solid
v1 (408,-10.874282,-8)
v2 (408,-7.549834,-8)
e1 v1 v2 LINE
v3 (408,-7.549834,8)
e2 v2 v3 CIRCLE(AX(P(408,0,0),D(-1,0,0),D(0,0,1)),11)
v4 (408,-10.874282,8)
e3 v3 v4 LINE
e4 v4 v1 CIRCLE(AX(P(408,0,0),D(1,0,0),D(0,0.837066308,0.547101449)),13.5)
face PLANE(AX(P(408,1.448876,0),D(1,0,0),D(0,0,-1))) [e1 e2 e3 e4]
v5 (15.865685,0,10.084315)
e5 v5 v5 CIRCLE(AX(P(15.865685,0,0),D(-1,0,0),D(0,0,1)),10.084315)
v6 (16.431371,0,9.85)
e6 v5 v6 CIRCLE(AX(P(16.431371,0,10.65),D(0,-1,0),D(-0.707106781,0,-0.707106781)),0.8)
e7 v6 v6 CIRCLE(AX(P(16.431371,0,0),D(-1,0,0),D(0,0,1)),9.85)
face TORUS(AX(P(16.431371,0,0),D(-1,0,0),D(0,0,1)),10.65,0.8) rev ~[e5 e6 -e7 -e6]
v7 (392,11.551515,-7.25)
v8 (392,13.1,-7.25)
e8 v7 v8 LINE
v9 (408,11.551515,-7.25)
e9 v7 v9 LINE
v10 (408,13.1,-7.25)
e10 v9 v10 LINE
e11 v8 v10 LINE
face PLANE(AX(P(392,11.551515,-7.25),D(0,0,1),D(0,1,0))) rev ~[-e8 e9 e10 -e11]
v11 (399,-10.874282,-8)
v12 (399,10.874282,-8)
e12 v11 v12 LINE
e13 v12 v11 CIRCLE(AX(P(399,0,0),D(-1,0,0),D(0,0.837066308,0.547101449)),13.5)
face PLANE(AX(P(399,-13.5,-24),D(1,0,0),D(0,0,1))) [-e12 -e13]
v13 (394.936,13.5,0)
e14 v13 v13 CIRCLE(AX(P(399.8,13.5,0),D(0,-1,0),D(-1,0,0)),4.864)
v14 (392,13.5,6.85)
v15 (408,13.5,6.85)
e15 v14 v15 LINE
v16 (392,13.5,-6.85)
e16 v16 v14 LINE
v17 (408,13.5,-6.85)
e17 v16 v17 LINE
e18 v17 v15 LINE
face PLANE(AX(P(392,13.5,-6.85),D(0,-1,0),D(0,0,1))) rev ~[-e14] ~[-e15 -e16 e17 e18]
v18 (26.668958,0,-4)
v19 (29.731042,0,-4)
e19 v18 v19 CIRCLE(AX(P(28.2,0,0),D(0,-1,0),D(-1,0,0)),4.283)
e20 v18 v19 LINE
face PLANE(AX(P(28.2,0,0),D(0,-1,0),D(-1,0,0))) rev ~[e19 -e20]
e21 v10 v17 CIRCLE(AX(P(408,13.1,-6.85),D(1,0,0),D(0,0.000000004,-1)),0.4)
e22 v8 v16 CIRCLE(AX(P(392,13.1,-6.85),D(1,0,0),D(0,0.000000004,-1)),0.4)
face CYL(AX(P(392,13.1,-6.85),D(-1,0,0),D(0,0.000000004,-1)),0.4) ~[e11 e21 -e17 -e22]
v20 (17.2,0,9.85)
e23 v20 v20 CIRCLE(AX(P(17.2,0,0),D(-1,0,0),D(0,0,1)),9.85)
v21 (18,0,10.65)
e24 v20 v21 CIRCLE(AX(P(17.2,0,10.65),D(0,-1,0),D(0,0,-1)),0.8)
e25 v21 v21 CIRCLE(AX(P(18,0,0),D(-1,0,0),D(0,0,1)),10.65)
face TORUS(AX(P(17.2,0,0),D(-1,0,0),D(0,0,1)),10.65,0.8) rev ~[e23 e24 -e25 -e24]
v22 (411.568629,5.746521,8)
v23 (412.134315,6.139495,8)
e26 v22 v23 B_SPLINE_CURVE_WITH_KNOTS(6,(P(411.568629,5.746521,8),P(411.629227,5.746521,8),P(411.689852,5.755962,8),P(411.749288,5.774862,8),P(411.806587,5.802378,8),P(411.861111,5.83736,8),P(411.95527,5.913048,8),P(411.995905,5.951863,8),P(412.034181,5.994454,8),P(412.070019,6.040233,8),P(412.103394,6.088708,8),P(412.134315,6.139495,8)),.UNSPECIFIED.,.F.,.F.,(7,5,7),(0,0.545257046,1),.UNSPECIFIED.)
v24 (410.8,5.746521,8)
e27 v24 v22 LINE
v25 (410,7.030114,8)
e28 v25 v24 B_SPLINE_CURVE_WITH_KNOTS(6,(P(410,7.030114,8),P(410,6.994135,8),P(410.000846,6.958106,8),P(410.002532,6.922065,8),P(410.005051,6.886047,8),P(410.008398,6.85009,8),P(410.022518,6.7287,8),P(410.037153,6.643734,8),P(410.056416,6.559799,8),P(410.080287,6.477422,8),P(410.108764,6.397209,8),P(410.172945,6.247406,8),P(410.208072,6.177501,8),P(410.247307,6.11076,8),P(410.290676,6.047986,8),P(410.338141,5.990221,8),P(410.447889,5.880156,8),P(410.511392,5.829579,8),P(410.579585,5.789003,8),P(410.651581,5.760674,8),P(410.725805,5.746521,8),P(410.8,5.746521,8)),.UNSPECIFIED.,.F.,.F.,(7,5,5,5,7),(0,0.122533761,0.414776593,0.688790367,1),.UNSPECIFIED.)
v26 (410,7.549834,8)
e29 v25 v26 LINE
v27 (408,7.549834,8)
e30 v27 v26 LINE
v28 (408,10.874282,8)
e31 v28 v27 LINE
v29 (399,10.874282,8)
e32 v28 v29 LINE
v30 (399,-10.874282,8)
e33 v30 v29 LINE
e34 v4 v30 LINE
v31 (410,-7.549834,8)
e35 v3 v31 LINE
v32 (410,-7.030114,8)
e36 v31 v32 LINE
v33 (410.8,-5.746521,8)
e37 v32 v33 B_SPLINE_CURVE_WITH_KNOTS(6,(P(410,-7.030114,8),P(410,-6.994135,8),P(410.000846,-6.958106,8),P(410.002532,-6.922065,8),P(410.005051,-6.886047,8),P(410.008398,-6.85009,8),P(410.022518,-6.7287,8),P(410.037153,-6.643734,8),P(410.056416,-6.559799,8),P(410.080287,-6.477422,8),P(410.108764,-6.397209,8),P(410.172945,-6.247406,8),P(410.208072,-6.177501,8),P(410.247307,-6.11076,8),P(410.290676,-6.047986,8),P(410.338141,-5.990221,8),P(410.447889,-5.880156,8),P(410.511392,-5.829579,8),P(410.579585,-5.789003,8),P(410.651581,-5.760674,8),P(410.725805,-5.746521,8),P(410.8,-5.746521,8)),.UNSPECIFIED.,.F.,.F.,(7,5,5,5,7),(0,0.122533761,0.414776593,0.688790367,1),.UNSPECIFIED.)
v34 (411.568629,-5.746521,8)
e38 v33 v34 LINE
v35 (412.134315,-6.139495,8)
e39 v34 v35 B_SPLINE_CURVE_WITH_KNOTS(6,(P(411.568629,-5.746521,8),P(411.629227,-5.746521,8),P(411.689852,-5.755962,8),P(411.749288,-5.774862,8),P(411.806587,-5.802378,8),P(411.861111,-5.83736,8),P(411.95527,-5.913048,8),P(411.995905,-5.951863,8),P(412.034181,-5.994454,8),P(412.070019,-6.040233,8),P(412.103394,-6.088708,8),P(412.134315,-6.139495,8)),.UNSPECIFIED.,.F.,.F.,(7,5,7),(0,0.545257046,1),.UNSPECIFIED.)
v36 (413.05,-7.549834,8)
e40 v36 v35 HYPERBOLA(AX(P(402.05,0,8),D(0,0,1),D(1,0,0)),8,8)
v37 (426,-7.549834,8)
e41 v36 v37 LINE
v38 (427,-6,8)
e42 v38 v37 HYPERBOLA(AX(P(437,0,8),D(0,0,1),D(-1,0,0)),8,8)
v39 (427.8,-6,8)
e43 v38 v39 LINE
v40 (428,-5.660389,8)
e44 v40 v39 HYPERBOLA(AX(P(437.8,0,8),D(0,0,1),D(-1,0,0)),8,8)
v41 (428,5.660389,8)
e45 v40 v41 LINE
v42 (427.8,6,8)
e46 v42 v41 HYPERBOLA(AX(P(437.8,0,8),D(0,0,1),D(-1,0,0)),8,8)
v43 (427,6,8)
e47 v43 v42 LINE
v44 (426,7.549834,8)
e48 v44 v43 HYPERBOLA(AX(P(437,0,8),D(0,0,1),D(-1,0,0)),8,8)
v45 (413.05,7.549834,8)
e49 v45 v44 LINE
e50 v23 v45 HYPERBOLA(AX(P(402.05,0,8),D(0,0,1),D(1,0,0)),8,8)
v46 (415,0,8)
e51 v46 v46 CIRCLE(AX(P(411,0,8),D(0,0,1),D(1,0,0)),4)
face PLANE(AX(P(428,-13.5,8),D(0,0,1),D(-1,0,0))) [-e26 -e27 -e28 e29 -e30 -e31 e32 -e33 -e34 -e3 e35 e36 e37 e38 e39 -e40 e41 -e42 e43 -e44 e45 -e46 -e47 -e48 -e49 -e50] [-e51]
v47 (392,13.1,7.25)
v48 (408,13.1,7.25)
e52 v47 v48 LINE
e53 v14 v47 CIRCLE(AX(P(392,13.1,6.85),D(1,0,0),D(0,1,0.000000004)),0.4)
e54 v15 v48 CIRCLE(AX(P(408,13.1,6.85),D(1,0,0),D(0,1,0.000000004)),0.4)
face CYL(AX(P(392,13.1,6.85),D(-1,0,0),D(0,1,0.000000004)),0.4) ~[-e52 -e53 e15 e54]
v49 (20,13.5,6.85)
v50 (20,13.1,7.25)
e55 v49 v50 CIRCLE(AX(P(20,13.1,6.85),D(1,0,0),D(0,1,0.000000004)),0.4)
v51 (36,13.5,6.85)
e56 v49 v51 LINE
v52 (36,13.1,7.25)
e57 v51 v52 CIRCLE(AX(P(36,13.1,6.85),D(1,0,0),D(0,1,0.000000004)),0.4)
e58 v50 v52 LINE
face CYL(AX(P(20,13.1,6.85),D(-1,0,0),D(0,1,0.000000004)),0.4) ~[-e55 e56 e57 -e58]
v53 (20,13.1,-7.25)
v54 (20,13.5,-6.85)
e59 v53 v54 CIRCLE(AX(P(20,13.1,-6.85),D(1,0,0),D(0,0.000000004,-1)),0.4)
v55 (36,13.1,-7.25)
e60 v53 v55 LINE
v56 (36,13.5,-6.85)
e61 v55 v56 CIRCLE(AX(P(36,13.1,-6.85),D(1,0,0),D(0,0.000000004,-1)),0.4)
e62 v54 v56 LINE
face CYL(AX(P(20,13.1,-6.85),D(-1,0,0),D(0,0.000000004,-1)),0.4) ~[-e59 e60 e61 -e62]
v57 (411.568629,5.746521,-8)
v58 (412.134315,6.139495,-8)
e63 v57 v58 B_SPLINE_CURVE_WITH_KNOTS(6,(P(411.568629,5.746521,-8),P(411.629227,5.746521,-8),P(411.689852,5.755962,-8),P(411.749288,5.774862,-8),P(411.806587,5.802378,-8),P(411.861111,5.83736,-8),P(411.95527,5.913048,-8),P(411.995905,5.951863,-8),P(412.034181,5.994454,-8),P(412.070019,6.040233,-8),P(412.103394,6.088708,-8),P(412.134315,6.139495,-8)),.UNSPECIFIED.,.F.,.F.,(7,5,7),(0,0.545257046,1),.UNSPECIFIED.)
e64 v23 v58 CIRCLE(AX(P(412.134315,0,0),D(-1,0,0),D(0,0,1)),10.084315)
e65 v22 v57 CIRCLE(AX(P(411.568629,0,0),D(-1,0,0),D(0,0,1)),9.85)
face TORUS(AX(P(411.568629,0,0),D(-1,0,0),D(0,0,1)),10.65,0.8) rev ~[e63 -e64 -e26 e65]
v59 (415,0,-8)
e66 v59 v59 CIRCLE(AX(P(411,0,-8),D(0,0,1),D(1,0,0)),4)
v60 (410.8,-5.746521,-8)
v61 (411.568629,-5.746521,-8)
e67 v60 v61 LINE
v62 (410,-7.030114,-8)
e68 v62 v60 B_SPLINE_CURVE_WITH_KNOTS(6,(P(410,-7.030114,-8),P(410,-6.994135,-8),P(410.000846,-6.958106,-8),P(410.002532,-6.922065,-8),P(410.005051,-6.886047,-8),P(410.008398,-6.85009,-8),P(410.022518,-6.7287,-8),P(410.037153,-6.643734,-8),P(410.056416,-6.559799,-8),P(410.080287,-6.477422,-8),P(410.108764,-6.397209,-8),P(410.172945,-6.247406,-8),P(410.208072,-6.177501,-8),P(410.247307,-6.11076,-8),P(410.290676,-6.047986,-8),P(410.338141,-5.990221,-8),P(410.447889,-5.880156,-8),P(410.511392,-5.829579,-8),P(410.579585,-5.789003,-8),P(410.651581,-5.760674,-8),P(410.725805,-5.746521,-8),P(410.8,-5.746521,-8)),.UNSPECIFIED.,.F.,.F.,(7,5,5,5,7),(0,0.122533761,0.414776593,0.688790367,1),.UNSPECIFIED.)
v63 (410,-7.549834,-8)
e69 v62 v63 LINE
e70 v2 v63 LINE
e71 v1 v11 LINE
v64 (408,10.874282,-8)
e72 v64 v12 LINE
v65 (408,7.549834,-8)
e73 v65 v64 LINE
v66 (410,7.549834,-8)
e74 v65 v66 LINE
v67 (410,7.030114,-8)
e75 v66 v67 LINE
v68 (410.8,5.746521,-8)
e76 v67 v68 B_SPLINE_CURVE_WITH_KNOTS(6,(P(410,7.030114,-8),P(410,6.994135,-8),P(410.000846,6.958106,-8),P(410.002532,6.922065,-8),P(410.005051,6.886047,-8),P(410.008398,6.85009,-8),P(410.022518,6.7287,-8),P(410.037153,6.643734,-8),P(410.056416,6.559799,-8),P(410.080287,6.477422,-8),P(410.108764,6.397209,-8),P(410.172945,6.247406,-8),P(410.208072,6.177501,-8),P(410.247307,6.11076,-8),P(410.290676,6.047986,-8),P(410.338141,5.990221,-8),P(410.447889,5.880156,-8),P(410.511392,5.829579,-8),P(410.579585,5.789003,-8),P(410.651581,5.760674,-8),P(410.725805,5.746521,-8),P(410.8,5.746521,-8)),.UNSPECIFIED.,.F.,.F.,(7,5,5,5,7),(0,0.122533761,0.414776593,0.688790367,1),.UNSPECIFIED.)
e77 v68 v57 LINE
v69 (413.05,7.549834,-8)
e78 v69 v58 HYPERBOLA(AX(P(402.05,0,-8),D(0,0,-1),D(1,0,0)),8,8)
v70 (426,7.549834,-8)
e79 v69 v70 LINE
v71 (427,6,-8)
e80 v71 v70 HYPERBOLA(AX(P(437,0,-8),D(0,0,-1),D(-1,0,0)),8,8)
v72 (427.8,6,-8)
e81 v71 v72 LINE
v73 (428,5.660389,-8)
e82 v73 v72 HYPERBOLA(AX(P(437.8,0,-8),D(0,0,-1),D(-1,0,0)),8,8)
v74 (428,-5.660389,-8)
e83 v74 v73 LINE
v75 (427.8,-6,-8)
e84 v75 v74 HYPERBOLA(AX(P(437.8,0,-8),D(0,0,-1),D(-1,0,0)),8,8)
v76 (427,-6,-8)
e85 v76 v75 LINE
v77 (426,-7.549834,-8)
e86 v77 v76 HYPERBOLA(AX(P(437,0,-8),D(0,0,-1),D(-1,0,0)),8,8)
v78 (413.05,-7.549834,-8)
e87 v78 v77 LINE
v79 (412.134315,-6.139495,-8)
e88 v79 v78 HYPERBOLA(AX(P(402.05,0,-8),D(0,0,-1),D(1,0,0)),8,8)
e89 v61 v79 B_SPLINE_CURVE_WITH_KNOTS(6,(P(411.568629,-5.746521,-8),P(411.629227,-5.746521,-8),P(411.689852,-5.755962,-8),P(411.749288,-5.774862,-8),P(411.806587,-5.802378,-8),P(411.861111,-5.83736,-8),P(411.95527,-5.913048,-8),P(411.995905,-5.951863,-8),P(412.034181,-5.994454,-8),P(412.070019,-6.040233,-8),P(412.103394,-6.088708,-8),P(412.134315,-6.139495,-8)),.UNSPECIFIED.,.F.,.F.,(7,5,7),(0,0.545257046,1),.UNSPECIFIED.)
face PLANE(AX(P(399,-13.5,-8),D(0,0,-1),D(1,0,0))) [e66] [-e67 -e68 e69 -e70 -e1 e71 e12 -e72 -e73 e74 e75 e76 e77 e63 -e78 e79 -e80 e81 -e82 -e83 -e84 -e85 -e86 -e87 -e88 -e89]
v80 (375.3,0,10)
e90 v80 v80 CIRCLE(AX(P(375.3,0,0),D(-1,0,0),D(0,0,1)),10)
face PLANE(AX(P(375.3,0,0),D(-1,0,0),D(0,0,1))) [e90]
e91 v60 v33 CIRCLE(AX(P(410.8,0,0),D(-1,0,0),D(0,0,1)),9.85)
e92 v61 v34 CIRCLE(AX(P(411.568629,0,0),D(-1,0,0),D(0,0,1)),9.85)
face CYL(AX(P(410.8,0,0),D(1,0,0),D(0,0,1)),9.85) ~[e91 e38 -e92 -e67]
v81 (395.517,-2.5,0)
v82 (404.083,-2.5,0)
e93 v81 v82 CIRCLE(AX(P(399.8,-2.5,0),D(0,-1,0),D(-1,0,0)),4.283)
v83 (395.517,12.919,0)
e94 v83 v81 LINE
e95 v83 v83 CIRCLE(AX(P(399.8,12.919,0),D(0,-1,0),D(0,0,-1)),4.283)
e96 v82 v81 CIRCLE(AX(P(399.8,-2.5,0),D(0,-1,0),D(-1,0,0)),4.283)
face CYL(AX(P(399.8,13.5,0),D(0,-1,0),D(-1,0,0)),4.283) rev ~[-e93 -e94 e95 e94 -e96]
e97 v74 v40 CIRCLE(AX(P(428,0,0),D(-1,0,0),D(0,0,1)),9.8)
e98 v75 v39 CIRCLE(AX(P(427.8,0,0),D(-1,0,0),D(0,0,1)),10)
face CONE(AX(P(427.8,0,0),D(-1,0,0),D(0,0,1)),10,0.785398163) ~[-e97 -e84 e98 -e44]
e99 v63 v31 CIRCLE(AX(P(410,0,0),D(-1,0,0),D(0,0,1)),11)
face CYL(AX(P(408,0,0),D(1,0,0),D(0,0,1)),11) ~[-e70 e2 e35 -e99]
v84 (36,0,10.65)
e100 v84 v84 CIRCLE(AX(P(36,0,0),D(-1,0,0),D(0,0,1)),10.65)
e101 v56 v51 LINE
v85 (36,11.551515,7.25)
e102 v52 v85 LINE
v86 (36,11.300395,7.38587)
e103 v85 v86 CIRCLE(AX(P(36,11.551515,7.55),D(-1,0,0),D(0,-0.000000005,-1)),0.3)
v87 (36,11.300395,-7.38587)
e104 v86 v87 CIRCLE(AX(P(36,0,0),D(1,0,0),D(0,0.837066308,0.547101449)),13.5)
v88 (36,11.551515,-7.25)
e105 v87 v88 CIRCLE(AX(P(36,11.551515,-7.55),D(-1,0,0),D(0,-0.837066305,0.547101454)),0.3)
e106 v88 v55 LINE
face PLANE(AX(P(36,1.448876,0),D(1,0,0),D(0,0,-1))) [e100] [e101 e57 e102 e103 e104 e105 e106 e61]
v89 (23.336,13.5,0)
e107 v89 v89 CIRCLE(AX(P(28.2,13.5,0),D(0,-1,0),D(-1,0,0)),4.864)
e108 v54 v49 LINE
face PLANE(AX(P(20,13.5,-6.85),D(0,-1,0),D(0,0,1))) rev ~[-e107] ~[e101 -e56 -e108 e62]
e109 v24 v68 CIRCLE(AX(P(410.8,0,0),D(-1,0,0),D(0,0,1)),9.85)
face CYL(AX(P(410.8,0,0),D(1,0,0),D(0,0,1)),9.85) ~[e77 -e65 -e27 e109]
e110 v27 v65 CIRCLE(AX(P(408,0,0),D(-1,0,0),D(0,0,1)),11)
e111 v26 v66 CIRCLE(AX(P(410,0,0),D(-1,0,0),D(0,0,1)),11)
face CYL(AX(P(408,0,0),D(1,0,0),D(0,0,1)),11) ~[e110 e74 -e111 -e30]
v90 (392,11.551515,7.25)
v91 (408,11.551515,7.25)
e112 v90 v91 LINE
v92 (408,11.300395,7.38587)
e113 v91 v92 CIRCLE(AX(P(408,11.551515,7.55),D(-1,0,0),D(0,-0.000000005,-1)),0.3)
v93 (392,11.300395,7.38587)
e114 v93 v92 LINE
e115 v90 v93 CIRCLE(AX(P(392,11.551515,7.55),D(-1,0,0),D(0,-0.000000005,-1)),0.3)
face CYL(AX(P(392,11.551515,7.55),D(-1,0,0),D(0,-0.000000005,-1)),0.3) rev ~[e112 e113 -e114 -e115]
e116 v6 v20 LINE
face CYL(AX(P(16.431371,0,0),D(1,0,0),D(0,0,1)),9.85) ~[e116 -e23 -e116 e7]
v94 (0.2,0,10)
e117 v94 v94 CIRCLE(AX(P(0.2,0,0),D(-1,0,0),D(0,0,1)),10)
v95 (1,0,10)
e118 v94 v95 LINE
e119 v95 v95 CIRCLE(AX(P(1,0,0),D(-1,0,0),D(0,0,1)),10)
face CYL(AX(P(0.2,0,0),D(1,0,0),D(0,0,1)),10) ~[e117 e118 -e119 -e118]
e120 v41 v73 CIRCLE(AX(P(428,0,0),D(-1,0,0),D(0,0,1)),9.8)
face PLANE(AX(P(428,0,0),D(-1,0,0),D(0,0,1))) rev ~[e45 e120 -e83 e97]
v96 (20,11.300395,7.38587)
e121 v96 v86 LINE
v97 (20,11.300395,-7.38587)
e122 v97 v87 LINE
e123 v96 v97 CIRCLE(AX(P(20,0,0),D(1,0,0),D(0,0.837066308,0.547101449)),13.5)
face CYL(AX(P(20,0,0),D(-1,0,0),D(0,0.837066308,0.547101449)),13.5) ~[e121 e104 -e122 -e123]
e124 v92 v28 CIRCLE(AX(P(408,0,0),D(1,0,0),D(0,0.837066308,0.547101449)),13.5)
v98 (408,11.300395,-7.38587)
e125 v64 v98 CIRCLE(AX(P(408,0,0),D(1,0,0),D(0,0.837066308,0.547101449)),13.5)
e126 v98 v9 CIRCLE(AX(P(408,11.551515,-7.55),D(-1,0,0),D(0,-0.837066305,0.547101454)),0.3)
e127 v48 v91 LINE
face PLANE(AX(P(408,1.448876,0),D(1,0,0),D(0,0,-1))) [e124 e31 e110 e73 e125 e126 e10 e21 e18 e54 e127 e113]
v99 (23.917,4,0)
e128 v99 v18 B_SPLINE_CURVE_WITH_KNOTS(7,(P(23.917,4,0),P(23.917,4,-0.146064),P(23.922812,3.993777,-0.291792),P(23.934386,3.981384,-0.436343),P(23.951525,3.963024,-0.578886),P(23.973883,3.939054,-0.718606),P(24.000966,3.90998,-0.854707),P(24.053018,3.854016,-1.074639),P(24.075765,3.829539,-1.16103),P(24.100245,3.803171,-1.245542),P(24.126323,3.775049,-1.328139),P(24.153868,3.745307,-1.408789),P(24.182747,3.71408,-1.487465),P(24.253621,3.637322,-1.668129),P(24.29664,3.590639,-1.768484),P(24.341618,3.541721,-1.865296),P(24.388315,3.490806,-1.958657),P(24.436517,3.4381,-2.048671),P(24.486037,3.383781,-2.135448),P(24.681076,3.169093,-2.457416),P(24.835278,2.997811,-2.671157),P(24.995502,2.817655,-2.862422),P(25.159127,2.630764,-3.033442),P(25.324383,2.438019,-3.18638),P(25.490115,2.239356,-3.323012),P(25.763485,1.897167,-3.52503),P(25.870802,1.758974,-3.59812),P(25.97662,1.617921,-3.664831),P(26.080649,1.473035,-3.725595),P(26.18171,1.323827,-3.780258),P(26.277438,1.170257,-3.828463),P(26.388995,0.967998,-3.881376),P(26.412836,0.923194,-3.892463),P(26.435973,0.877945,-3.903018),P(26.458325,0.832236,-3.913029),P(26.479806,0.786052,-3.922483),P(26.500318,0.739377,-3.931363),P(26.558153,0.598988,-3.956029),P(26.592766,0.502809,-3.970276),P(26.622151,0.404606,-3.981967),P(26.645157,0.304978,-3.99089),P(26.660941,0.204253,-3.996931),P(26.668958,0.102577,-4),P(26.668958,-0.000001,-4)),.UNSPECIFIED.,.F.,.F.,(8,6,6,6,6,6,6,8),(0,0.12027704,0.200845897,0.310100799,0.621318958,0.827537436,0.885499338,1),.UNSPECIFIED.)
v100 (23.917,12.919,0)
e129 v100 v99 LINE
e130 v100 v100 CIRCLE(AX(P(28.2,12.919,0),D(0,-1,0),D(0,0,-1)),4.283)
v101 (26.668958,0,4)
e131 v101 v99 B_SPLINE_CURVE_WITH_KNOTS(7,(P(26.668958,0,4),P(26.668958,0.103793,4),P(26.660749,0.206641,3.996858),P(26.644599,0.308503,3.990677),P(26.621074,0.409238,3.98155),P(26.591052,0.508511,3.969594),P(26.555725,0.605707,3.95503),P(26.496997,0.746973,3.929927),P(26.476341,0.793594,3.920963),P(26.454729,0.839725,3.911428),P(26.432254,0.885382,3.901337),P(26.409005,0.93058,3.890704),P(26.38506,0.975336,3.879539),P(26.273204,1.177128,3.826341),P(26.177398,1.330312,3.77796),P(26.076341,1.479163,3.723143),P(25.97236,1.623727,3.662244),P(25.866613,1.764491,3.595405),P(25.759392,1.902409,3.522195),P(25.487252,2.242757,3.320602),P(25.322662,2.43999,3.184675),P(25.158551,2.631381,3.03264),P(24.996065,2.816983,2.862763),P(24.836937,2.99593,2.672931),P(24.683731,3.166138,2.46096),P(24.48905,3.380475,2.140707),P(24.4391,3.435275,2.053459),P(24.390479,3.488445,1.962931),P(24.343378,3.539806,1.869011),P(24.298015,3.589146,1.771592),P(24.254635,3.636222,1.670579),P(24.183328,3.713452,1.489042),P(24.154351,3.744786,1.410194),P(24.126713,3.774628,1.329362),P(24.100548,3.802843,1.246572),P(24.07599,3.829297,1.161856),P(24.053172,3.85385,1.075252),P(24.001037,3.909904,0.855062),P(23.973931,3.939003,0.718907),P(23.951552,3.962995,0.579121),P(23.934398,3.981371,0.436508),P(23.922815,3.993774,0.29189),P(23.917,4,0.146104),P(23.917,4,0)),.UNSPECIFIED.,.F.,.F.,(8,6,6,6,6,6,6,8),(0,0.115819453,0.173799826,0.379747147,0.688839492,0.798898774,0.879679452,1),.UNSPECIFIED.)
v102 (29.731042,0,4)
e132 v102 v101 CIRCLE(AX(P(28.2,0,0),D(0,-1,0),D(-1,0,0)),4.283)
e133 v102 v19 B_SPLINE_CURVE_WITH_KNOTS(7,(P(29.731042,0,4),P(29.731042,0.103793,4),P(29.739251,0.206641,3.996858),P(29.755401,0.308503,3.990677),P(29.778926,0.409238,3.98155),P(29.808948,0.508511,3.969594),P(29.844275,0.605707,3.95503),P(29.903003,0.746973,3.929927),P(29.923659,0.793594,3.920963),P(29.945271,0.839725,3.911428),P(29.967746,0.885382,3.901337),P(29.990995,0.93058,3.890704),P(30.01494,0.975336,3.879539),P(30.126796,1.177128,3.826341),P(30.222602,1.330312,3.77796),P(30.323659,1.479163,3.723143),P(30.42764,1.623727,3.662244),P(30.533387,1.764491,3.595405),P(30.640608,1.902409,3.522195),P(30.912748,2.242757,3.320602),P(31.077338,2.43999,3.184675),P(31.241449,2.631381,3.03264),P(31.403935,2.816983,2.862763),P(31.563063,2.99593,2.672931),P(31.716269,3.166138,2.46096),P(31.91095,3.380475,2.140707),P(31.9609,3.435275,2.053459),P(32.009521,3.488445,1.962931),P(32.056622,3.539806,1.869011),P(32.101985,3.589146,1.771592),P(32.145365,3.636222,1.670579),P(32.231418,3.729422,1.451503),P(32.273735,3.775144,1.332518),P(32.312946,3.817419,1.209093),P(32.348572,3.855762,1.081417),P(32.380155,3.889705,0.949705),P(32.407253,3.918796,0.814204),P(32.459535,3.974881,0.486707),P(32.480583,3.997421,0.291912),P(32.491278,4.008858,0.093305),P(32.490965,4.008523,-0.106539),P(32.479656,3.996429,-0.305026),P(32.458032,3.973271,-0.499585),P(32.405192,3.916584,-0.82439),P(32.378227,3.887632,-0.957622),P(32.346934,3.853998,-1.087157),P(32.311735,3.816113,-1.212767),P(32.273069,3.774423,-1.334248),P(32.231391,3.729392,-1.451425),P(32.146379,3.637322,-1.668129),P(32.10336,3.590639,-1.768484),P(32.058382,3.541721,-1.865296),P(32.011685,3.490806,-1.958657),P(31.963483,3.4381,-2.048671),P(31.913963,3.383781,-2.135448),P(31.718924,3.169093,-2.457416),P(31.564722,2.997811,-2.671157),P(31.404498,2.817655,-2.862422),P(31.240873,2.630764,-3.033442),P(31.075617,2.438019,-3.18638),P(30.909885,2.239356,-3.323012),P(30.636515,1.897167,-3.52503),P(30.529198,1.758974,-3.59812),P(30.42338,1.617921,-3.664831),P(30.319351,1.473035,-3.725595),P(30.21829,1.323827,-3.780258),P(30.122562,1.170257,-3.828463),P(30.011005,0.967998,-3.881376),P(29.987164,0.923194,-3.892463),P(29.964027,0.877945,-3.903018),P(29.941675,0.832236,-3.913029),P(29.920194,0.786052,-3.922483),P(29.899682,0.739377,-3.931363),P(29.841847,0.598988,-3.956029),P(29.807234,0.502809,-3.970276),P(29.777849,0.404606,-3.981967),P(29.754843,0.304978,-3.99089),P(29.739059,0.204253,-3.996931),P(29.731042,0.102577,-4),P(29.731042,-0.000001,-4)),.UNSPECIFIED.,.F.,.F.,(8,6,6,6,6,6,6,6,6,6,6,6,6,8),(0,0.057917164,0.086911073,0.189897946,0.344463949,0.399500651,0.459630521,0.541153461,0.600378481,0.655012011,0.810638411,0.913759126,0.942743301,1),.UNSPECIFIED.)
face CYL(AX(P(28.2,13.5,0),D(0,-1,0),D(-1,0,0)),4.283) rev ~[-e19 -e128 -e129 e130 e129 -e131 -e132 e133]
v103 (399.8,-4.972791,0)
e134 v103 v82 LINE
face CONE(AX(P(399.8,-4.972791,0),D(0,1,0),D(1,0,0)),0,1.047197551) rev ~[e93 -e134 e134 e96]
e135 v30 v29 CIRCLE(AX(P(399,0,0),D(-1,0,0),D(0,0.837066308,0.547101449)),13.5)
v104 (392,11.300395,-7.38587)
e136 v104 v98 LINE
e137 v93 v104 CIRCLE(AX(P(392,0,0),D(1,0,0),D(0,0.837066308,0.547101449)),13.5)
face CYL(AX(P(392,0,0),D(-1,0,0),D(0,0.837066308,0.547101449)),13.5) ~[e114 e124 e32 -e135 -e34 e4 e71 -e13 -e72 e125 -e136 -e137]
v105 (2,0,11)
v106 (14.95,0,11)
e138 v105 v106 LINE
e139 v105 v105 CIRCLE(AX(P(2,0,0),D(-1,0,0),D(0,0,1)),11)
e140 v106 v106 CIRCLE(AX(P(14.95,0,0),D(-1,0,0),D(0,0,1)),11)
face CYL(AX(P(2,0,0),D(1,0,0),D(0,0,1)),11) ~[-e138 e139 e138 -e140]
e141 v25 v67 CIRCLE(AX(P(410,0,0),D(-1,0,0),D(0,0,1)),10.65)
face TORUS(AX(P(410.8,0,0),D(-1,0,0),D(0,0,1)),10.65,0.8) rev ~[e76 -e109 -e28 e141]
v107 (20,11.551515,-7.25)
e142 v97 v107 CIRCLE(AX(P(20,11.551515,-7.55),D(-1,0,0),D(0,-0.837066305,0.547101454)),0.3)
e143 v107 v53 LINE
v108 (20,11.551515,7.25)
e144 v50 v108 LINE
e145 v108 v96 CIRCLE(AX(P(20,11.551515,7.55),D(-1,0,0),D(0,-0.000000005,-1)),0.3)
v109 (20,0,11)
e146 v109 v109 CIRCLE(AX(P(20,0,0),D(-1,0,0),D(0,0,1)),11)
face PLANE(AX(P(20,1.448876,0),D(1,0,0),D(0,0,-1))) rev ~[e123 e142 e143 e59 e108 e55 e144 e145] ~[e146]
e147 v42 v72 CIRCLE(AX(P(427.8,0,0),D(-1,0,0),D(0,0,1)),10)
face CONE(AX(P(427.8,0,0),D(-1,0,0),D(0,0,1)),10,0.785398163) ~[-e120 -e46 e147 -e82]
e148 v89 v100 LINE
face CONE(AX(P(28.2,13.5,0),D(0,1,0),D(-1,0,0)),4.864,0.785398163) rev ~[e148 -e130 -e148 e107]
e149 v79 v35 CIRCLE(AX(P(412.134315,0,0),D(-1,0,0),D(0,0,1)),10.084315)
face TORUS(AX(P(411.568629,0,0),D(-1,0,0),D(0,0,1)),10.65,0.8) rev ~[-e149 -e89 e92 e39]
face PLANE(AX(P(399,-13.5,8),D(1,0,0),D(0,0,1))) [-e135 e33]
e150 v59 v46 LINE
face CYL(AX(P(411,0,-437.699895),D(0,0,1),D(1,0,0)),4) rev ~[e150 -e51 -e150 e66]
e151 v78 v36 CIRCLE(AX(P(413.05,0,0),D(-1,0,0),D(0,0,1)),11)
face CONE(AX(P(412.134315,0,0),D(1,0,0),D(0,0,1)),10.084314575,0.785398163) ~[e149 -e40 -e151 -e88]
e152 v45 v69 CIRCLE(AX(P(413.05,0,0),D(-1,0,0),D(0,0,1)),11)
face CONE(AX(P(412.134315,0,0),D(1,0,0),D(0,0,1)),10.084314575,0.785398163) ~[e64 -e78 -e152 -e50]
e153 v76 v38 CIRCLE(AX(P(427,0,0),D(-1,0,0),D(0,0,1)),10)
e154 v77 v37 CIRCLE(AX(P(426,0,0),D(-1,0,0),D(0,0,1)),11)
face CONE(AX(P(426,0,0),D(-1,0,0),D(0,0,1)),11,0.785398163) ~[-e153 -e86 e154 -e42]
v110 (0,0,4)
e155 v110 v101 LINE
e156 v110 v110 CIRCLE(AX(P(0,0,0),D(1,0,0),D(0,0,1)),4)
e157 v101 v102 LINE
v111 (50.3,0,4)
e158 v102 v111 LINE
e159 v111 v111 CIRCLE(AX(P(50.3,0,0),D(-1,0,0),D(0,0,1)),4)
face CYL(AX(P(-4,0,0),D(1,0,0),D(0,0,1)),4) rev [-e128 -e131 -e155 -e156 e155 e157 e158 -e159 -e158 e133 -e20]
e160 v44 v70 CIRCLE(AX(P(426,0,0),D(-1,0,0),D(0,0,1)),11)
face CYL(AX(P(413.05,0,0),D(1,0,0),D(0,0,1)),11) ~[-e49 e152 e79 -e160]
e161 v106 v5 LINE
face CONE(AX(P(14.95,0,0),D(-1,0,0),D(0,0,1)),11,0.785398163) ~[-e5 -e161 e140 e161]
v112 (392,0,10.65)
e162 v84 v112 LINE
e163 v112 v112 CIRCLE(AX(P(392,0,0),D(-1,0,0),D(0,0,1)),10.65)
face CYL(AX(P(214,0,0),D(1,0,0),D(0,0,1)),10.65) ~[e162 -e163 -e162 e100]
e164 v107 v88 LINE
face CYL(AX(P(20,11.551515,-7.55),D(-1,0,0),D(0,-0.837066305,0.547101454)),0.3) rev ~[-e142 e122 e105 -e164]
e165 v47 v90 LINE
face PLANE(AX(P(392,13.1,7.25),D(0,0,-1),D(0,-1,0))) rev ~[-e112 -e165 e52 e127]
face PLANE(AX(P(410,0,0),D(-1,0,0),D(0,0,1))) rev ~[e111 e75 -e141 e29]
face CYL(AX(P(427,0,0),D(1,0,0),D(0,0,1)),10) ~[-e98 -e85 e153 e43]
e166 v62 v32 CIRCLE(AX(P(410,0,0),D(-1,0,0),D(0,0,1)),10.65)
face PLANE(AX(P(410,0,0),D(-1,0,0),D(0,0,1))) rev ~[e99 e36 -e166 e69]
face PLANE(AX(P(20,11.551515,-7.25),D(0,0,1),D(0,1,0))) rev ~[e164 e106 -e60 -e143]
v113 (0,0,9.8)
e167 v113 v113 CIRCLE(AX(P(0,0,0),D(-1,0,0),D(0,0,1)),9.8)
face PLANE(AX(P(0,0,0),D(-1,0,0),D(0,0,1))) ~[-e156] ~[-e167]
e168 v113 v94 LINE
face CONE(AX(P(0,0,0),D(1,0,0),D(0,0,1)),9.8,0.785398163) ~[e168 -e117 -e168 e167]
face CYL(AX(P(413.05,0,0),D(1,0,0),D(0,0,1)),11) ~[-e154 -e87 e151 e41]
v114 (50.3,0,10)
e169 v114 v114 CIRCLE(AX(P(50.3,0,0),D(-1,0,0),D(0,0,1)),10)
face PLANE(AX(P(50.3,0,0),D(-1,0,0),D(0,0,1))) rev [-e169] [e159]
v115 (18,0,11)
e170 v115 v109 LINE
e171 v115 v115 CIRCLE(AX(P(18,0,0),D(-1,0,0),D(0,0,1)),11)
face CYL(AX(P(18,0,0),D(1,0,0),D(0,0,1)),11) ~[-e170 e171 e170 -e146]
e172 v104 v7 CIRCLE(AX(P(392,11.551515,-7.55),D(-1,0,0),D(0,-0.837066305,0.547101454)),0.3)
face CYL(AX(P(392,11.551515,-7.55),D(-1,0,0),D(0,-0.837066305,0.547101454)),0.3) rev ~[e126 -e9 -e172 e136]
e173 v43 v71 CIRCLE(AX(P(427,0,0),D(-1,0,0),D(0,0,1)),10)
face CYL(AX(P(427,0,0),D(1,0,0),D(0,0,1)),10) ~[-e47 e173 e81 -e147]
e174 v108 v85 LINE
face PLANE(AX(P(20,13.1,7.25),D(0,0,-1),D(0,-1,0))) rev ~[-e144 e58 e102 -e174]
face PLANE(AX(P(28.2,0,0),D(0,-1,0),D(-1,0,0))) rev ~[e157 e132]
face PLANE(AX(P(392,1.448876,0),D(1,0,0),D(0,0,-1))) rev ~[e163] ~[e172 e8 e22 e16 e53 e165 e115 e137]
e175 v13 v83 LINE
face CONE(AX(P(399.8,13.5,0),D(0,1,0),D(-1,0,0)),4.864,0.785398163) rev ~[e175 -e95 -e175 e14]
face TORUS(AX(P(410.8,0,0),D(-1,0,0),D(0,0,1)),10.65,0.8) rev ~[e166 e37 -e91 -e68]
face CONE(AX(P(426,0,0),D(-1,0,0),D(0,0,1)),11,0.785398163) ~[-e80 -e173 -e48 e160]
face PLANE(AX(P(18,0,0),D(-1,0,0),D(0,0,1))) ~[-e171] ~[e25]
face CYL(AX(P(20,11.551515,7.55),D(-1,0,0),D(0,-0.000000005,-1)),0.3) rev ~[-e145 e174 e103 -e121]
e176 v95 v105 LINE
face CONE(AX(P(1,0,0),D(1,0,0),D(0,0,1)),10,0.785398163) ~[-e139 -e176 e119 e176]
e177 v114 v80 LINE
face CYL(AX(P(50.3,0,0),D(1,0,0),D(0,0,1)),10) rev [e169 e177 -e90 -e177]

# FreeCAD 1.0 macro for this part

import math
import FreeCAD as App
import Part
import Sketcher

V = App.Vector
Q = App.Units.Quantity


def add_polygon(sketch, points):
    """Adds a closed chain of lines whose ends are joined by coincident constraints."""
    first, n = sketch.GeometryCount, len(points)
    for a, b in zip(points, points[1:] + points[:1]):
        sketch.addGeometry(Part.LineSegment(App.Vector(*a, 0), App.Vector(*b, 0)), False)
    for i in range(n):
        sketch.addConstraint(Sketcher.Constraint("Coincident", first + i, 2, first + (i + 1) % n, 1))

doc = App.newDocument("Part")
params = doc.addObject("Spreadsheet::Sheet", "Params")
for row, (alias, value) in enumerate([
    ("sketch1_radius", "0.8 mm"),
    ("sketch1_width", "20 mm"),
    ("sketch1_width2", "2 mm"),
    ("sketch1_height", "11 mm"),
    ("sketch1_width3", "0.8 mm"),
    ("revolution_angle", "360 deg"),
    ("sketch2_radius", "0.4 mm"),
    ("sketch2_radius2", "0.3 mm"),
    ("sketch2_radius3", "13.5 mm"),
    ("sketch2_height", "13.7 mm"),
    ("pad1_length", "16 mm"),
    ("sketch3_width", "356 mm"),
    ("sketch3_height", "10.65 mm"),
    ("revolution2_angle", "360 deg"),
    ("sketch4_radius", "0.4 mm"),
    ("sketch4_radius2", "0.3 mm"),
    ("sketch4_radius3", "13.5 mm"),
    ("sketch4_height", "13.7 mm"),
    ("pad2_length", "16 mm"),
    ("sketch5_radius", "0.8 mm"),
    ("sketch5_width", "20 mm"),
    ("sketch5_width2", "2 mm"),
    ("sketch5_height", "11 mm"),
    ("sketch5_width3", "0.8 mm"),
    ("revolution3_angle", "360 deg"),
    ("sketch6_width", "29 mm"),
    ("sketch6_width2", "45 mm"),
    ("sketch6_height", "16 mm"),
    ("sketch7_diameter", "8 mm"),
    ("hole_diameter", "8 mm"),
    ("hole2_diameter", "8.566 mm"),
    ("hole2_depth", "13.5 mm"),
    ("hole2_csink_diameter", "9.728 mm"),
    ("hole3_diameter", "8.566 mm"),
    ("hole3_depth", "16 mm"),
    ("hole3_csink_diameter", "9.728 mm"),
    ("sketch10_width", "325 mm"),
    ("sketch10_height", "4 mm"),
    ("sketch10_height2", "10 mm"),
    ("sketch10_width2", "379.3 mm"),
    ("groove_angle", "360 deg"),
], start=1):
    params.set(f"A{row}", alias)
    params.set(f"B{row}", "=" + value)
    params.setAlias(f"B{row}", alias)

body = doc.addObject("PartDesign::Body", "Body")

# Sketch on XY plane
sketch1 = body.newObject("Sketcher::SketchObject", "Sketch")
sketch1.AttachmentSupport = (doc.getObject("XY_Plane"), [""])
sketch1.MapMode = "FlatFace"
sketch1.addGeometry(Part.LineSegment(V(0, 9.8, 0), V(0, 0, 0)), False)
sketch1.addGeometry(Part.LineSegment(V(0, 0, 0), V(20, 0, 0)), False)
sketch1.addGeometry(Part.LineSegment(V(20, 0, 0), V(20, 11, 0)), False)
sketch1.addGeometry(Part.LineSegment(V(20, 11, 0), V(18, 11, 0)), False)
sketch1.addGeometry(Part.LineSegment(V(18, 11, 0), V(18, 10.65, 0)), False)
sketch1.addGeometry(Part.ArcOfCircle(Part.Circle(V(17.2, 10.65, 0), V(0, 0, 1), 0.8), math.radians(-90), math.radians(0)), False)
sketch1.addGeometry(Part.LineSegment(V(17.2, 9.85, 0), V(16.431371, 9.85, 0)), False)
sketch1.addGeometry(Part.ArcOfCircle(Part.Circle(V(16.431371, 10.65, 0), V(0, 0, 1), 0.8), math.radians(-135), math.radians(-90)), False)
sketch1.addGeometry(Part.LineSegment(V(15.865685, 10.084315, 0), V(14.95, 11, 0)), False)
sketch1.addGeometry(Part.LineSegment(V(14.95, 11, 0), V(2, 11, 0)), False)
sketch1.addGeometry(Part.LineSegment(V(2, 11, 0), V(1, 10, 0)), False)
sketch1.addGeometry(Part.LineSegment(V(1, 10, 0), V(0.2, 10, 0)), False)
sketch1.addGeometry(Part.LineSegment(V(0.2, 10, 0), V(0, 9.8, 0)), False)
sketch1.addConstraint(Sketcher.Constraint("Coincident", 0, 2, 1, 1))
sketch1.addConstraint(Sketcher.Constraint("Coincident", 1, 2, 2, 1))
sketch1.addConstraint(Sketcher.Constraint("Coincident", 2, 2, 3, 1))
sketch1.addConstraint(Sketcher.Constraint("Coincident", 3, 2, 4, 1))
sketch1.addConstraint(Sketcher.Constraint("Tangent", 4, 2, 5, 2))
sketch1.addConstraint(Sketcher.Constraint("Tangent", 5, 1, 6, 1))
sketch1.addConstraint(Sketcher.Constraint("Tangent", 6, 2, 7, 2))
sketch1.addConstraint(Sketcher.Constraint("Tangent", 7, 1, 8, 1))
sketch1.addConstraint(Sketcher.Constraint("Coincident", 8, 2, 9, 1))
sketch1.addConstraint(Sketcher.Constraint("Coincident", 9, 2, 10, 1))
sketch1.addConstraint(Sketcher.Constraint("Coincident", 10, 2, 11, 1))
sketch1.addConstraint(Sketcher.Constraint("Coincident", 11, 2, 12, 1))
sketch1.addConstraint(Sketcher.Constraint("Coincident", 12, 2, 0, 1))
sketch1.addConstraint(Sketcher.Constraint("Vertical", 0))
sketch1.addConstraint(Sketcher.Constraint("Horizontal", 1))
sketch1.addConstraint(Sketcher.Constraint("Vertical", 2))
sketch1.addConstraint(Sketcher.Constraint("Horizontal", 3))
sketch1.addConstraint(Sketcher.Constraint("Vertical", 4))
sketch1.addConstraint(Sketcher.Constraint("Horizontal", 6))
sketch1.addConstraint(Sketcher.Constraint("Horizontal", 9))
sketch1.addConstraint(Sketcher.Constraint("Horizontal", 11))
sketch1.addConstraint(Sketcher.Constraint("Coincident", 0, 2, -1, 1))
sketch1.addConstraint(Sketcher.Constraint("Equal", 5, 7))
sketch1.addConstraint(Sketcher.Constraint("Perpendicular", 8, 10))
sketch1.addConstraint(Sketcher.Constraint("Parallel", 10, 12))
sketch1.addConstraint(Sketcher.Constraint("Horizontal", 3, 2, 8, 2))
sketch1.addConstraint(Sketcher.Constraint("Radius", 5, Q("0.8 mm")))
sketch1.addConstraint(Sketcher.Constraint("DistanceX", 1, 1, 1, 2, Q("20 mm")))
sketch1.addConstraint(Sketcher.Constraint("DistanceX", 3, 2, 3, 1, Q("2 mm")))
sketch1.addConstraint(Sketcher.Constraint("DistanceY", 2, 1, 2, 2, Q("11 mm")))
sketch1.addConstraint(Sketcher.Constraint("Angle", 8, Q("135 deg")))
sketch1.addConstraint(Sketcher.Constraint("DistanceX", 11, 2, 11, 1, Q("0.8 mm")))
sketch1.addConstraint(Sketcher.Constraint("DistanceY", 0, 2, 0, 1, Q("9.8 mm")))
sketch1.addConstraint(Sketcher.Constraint("DistanceX", -1, 1, 10, 2, Q("1 mm")))
sketch1.addConstraint(Sketcher.Constraint("DistanceX", 9, 2, 9, 1, Q("12.95 mm")))
sketch1.addConstraint(Sketcher.Constraint("DistanceY", 4, 2, 4, 1, Q("0.35 mm")))
sketch1.setExpression("Constraints[26]", "Params.sketch1_radius")
sketch1.setExpression("Constraints[27]", "Params.sketch1_width")
sketch1.setExpression("Constraints[28]", "Params.sketch1_width2")
sketch1.setExpression("Constraints[29]", "Params.sketch1_height")
sketch1.setExpression("Constraints[31]", "Params.sketch1_width3")
revolution = body.newObject("PartDesign::Revolution", "Revolution")
revolution.Profile = sketch1
revolution.ReferenceAxis = (sketch1, ["H_Axis"])
revolution.setExpression("Angle", "Params.revolution_angle")

# Sketch on YZ plane
sketch2 = body.newObject("Sketcher::SketchObject", "Sketch001")
sketch2.AttachmentSupport = (doc.getObject("YZ_Plane"), [""])
sketch2.MapMode = "FlatFace"
sketch2.AttachmentOffset = App.Placement(V(0, 0, 20), App.Rotation())
sketch2.addGeometry(Part.LineSegment(V(11.551515, -7.25, 0), V(13.1, -7.25, 0)), False)
sketch2.addGeometry(Part.ArcOfCircle(Part.Circle(V(13.1, -6.85, 0), V(0, 0, 1), 0.4), math.radians(-90), math.radians(0)), False)
sketch2.addGeometry(Part.LineSegment(V(13.5, -6.85, 0), V(13.5, 6.85, 0)), False)
sketch2.addGeometry(Part.ArcOfCircle(Part.Circle(V(13.1, 6.85, 0), V(0, 0, 1), 0.4), math.radians(0), math.radians(90)), False)
sketch2.addGeometry(Part.LineSegment(V(13.1, 7.25, 0), V(11.551515, 7.25, 0)), False)
sketch2.addGeometry(Part.ArcOfCircle(Part.Circle(V(11.551515, 7.55, 0), V(0, 0, 1), 0.3), math.radians(-146.831613), math.radians(-90)), False)
sketch2.addGeometry(Part.ArcOfCircle(Part.Circle(V(0, 0, 0), V(0, 0, 1), 13.5), math.radians(33.168387), math.radians(326.831613)), False)
sketch2.addGeometry(Part.ArcOfCircle(Part.Circle(V(11.551515, -7.55, 0), V(0, 0, 1), 0.3), math.radians(90), math.radians(146.831613)), False)
sketch2.addConstraint(Sketcher.Constraint("Tangent", 0, 2, 1, 1))
sketch2.addConstraint(Sketcher.Constraint("Tangent", 1, 2, 2, 1))
sketch2.addConstraint(Sketcher.Constraint("Tangent", 2, 2, 3, 1))
sketch2.addConstraint(Sketcher.Constraint("Tangent", 3, 2, 4, 1))
sketch2.addConstraint(Sketcher.Constraint("Tangent", 4, 2, 5, 2))
sketch2.addConstraint(Sketcher.Constraint("Tangent", 5, 1, 6, 1))
sketch2.addConstraint(Sketcher.Constraint("Tangent", 6, 2, 7, 2))
sketch2.addConstraint(Sketcher.Constraint("Tangent", 7, 1, 0, 1))
sketch2.addConstraint(Sketcher.Constraint("Horizontal", 0))
sketch2.addConstraint(Sketcher.Constraint("Vertical", 2))
sketch2.addConstraint(Sketcher.Constraint("Horizontal", 4))
sketch2.addConstraint(Sketcher.Constraint("Coincident", 6, 3, -1, 1))
sketch2.addConstraint(Sketcher.Constraint("Equal", 1, 3))
sketch2.addConstraint(Sketcher.Constraint("Equal", 5, 7))
sketch2.addConstraint(Sketcher.Constraint("Vertical", 5, 3, 7, 3))
sketch2.addConstraint(Sketcher.Constraint("Radius", 1, Q("0.4 mm")))
sketch2.addConstraint(Sketcher.Constraint("Radius", 5, Q("0.3 mm")))
sketch2.addConstraint(Sketcher.Constraint("Radius", 6, Q("13.5 mm")))
sketch2.addConstraint(Sketcher.Constraint("DistanceY", 2, 1, 2, 2, Q("13.7 mm")))
sketch2.addConstraint(Sketcher.Constraint("DistanceX", -1, 1, 1, 3, Q("13.1 mm")))
sketch2.setExpression("Constraints[15]", "Params.sketch2_radius")
sketch2.setExpression("Constraints[16]", "Params.sketch2_radius2")
sketch2.setExpression("Constraints[17]", "Params.sketch2_radius3")
sketch2.setExpression("Constraints[18]", "Params.sketch2_height")
pad1 = body.newObject("PartDesign::Pad", "Pad")
pad1.Profile = sketch2
pad1.setExpression("Length", "Params.pad1_length")

# Sketch on XY plane
sketch3 = body.newObject("Sketcher::SketchObject", "Sketch002")
sketch3.AttachmentSupport = (doc.getObject("XY_Plane"), [""])
sketch3.MapMode = "FlatFace"
add_polygon(sketch3, [(36, 10.65), (36, 0), (392, 0), (392, 10.65)])  # lines 0-3
sketch3.addConstraint(Sketcher.Constraint("Vertical", 0))
sketch3.addConstraint(Sketcher.Constraint("Horizontal", 1))
sketch3.addConstraint(Sketcher.Constraint("Vertical", 2))
sketch3.addConstraint(Sketcher.Constraint("Horizontal", 3))
sketch3.addConstraint(Sketcher.Constraint("PointOnObject", 0, 2, -1))
sketch3.addConstraint(Sketcher.Constraint("DistanceX", 1, 1, 1, 2, Q("356 mm")))
sketch3.addConstraint(Sketcher.Constraint("DistanceX", -1, 1, 0, 2, Q("36 mm")))
sketch3.addConstraint(Sketcher.Constraint("DistanceY", 0, 2, 0, 1, Q("10.65 mm")))
sketch3.setExpression("Constraints[9]", "Params.sketch3_width")
sketch3.setExpression("Constraints[11]", "Params.sketch3_height")
revolution2 = body.newObject("PartDesign::Revolution", "Revolution001")
revolution2.Profile = sketch3
revolution2.ReferenceAxis = (sketch3, ["H_Axis"])
revolution2.setExpression("Angle", "Params.revolution2_angle")

# Sketch on YZ plane
sketch4 = body.newObject("Sketcher::SketchObject", "Sketch003")
sketch4.AttachmentSupport = (doc.getObject("YZ_Plane"), [""])
sketch4.MapMode = "FlatFace"
sketch4.AttachmentOffset = App.Placement(V(0, 0, 392), App.Rotation())
sketch4.addGeometry(Part.LineSegment(V(11.551515, -7.25, 0), V(13.1, -7.25, 0)), False)
sketch4.addGeometry(Part.ArcOfCircle(Part.Circle(V(13.1, -6.85, 0), V(0, 0, 1), 0.4), math.radians(-90), math.radians(0)), False)
sketch4.addGeometry(Part.LineSegment(V(13.5, -6.85, 0), V(13.5, 6.85, 0)), False)
sketch4.addGeometry(Part.ArcOfCircle(Part.Circle(V(13.1, 6.85, 0), V(0, 0, 1), 0.4), math.radians(0), math.radians(90)), False)
sketch4.addGeometry(Part.LineSegment(V(13.1, 7.25, 0), V(11.551515, 7.25, 0)), False)
sketch4.addGeometry(Part.ArcOfCircle(Part.Circle(V(11.551515, 7.55, 0), V(0, 0, 1), 0.3), math.radians(-146.831613), math.radians(-90)), False)
sketch4.addGeometry(Part.ArcOfCircle(Part.Circle(V(0, 0, 0), V(0, 0, 1), 13.5), math.radians(33.168387), math.radians(326.831613)), False)
sketch4.addGeometry(Part.ArcOfCircle(Part.Circle(V(11.551515, -7.55, 0), V(0, 0, 1), 0.3), math.radians(90), math.radians(146.831613)), False)
sketch4.addConstraint(Sketcher.Constraint("Tangent", 0, 2, 1, 1))
sketch4.addConstraint(Sketcher.Constraint("Tangent", 1, 2, 2, 1))
sketch4.addConstraint(Sketcher.Constraint("Tangent", 2, 2, 3, 1))
sketch4.addConstraint(Sketcher.Constraint("Tangent", 3, 2, 4, 1))
sketch4.addConstraint(Sketcher.Constraint("Tangent", 4, 2, 5, 2))
sketch4.addConstraint(Sketcher.Constraint("Tangent", 5, 1, 6, 1))
sketch4.addConstraint(Sketcher.Constraint("Tangent", 6, 2, 7, 2))
sketch4.addConstraint(Sketcher.Constraint("Tangent", 7, 1, 0, 1))
sketch4.addConstraint(Sketcher.Constraint("Horizontal", 0))
sketch4.addConstraint(Sketcher.Constraint("Vertical", 2))
sketch4.addConstraint(Sketcher.Constraint("Horizontal", 4))
sketch4.addConstraint(Sketcher.Constraint("Coincident", 6, 3, -1, 1))
sketch4.addConstraint(Sketcher.Constraint("Equal", 1, 3))
sketch4.addConstraint(Sketcher.Constraint("Equal", 5, 7))
sketch4.addConstraint(Sketcher.Constraint("Vertical", 5, 3, 7, 3))
sketch4.addConstraint(Sketcher.Constraint("Radius", 1, Q("0.4 mm")))
sketch4.addConstraint(Sketcher.Constraint("Radius", 5, Q("0.3 mm")))
sketch4.addConstraint(Sketcher.Constraint("Radius", 6, Q("13.5 mm")))
sketch4.addConstraint(Sketcher.Constraint("DistanceY", 2, 1, 2, 2, Q("13.7 mm")))
sketch4.addConstraint(Sketcher.Constraint("DistanceX", -1, 1, 1, 3, Q("13.1 mm")))
sketch4.setExpression("Constraints[15]", "Params.sketch4_radius")
sketch4.setExpression("Constraints[16]", "Params.sketch4_radius2")
sketch4.setExpression("Constraints[17]", "Params.sketch4_radius3")
sketch4.setExpression("Constraints[18]", "Params.sketch4_height")
pad2 = body.newObject("PartDesign::Pad", "Pad001")
pad2.Profile = sketch4
pad2.setExpression("Length", "Params.pad2_length")

# Sketch on XY plane
sketch5 = body.newObject("Sketcher::SketchObject", "Sketch004")
sketch5.AttachmentSupport = (doc.getObject("XY_Plane"), [""])
sketch5.MapMode = "FlatFace"
sketch5.addGeometry(Part.LineSegment(V(408, 11, 0), V(408, 0, 0)), False)
sketch5.addGeometry(Part.LineSegment(V(408, 0, 0), V(428, 0, 0)), False)
sketch5.addGeometry(Part.LineSegment(V(428, 0, 0), V(428, 9.8, 0)), False)
sketch5.addGeometry(Part.LineSegment(V(428, 9.8, 0), V(427.8, 10, 0)), False)
sketch5.addGeometry(Part.LineSegment(V(427.8, 10, 0), V(427, 10, 0)), False)
sketch5.addGeometry(Part.LineSegment(V(427, 10, 0), V(426, 11, 0)), False)
sketch5.addGeometry(Part.LineSegment(V(426, 11, 0), V(413.05, 11, 0)), False)
sketch5.addGeometry(Part.LineSegment(V(413.05, 11, 0), V(412.134315, 10.084315, 0)), False)
sketch5.addGeometry(Part.ArcOfCircle(Part.Circle(V(411.568629, 10.65, 0), V(0, 0, 1), 0.8), math.radians(-90), math.radians(-45)), False)
sketch5.addGeometry(Part.LineSegment(V(411.568629, 9.85, 0), V(410.8, 9.85, 0)), False)
sketch5.addGeometry(Part.ArcOfCircle(Part.Circle(V(410.8, 10.65, 0), V(0, 0, 1), 0.8), math.radians(180), math.radians(270)), False)
sketch5.addGeometry(Part.LineSegment(V(410, 10.65, 0), V(410, 11, 0)), False)
sketch5.addGeometry(Part.LineSegment(V(410, 11, 0), V(408, 11, 0)), False)
sketch5.addConstraint(Sketcher.Constraint("Coincident", 0, 2, 1, 1))
sketch5.addConstraint(Sketcher.Constraint("Coincident", 1, 2, 2, 1))
sketch5.addConstraint(Sketcher.Constraint("Coincident", 2, 2, 3, 1))
sketch5.addConstraint(Sketcher.Constraint("Coincident", 3, 2, 4, 1))
sketch5.addConstraint(Sketcher.Constraint("Coincident", 4, 2, 5, 1))
sketch5.addConstraint(Sketcher.Constraint("Coincident", 5, 2, 6, 1))
sketch5.addConstraint(Sketcher.Constraint("Coincident", 6, 2, 7, 1))
sketch5.addConstraint(Sketcher.Constraint("Tangent", 7, 2, 8, 2))
sketch5.addConstraint(Sketcher.Constraint("Tangent", 8, 1, 9, 1))
sketch5.addConstraint(Sketcher.Constraint("Tangent", 9, 2, 10, 2))
sketch5.addConstraint(Sketcher.Constraint("Tangent", 10, 1, 11, 1))
sketch5.addConstraint(Sketcher.Constraint("Coincident", 11, 2, 12, 1))
sketch5.addConstraint(Sketcher.Constraint("Coincident", 12, 2, 0, 1))
sketch5.addConstraint(Sketcher.Constraint("Vertical", 0))
sketch5.addConstraint(Sketcher.Constraint("Horizontal", 1))
sketch5.addConstraint(Sketcher.Constraint("Vertical", 2))
sketch5.addConstraint(Sketcher.Constraint("Horizontal", 4))
sketch5.addConstraint(Sketcher.Constraint("Horizontal", 6))
sketch5.addConstraint(Sketcher.Constraint("Horizontal", 9))
sketch5.addConstraint(Sketcher.Constraint("Vertical", 11))
sketch5.addConstraint(Sketcher.Constraint("Horizontal", 12))
sketch5.addConstraint(Sketcher.Constraint("Equal", 8, 10))
sketch5.addConstraint(Sketcher.Constraint("PointOnObject", 0, 2, -1))
sketch5.addConstraint(Sketcher.Constraint("Parallel", 3, 5))
sketch5.addConstraint(Sketcher.Constraint("Perpendicular", 5, 7))
sketch5.addConstraint(Sketcher.Constraint("Horizontal", 6, 2, 11, 2))
sketch5.addConstraint(Sketcher.Constraint("Radius", 8, Q("0.8 mm")))
sketch5.addConstraint(Sketcher.Constraint("DistanceX", 1, 1, 1, 2, Q("20 mm")))
sketch5.addConstraint(Sketcher.Constraint("DistanceX", 12, 2, 12, 1, Q("2 mm")))
sketch5.addConstraint(Sketcher.Constraint("DistanceY", 0, 2, 0, 1, Q("11 mm")))
sketch5.addConstraint(Sketcher.Constraint("Angle", 3, Q("135 deg")))
sketch5.addConstraint(Sketcher.Constraint("DistanceX", 4, 2, 4, 1, Q("0.8 mm")))
sketch5.addConstraint(Sketcher.Constraint("DistanceY", 2, 1, 2, 2, Q("9.8 mm")))
sketch5.addConstraint(Sketcher.Constraint("DistanceX", -1, 1, 0, 2, Q("408 mm")))
sketch5.addConstraint(Sketcher.Constraint("DistanceY", -1, 1, 3, 2, Q("10 mm")))
sketch5.addConstraint(Sketcher.Constraint("DistanceX", 6, 2, 6, 1, Q("12.95 mm")))
sketch5.addConstraint(Sketcher.Constraint("DistanceY", 11, 1, 11, 2, Q("0.35 mm")))
sketch5.setExpression("Constraints[26]", "Params.sketch5_radius")
sketch5.setExpression("Constraints[27]", "Params.sketch5_width")
sketch5.setExpression("Constraints[28]", "Params.sketch5_width2")
sketch5.setExpression("Constraints[29]", "Params.sketch5_height")
sketch5.setExpression("Constraints[31]", "Params.sketch5_width3")
revolution3 = body.newObject("PartDesign::Revolution", "Revolution002")
revolution3.Profile = sketch5
revolution3.ReferenceAxis = (sketch5, ["H_Axis"])
revolution3.setExpression("Angle", "Params.revolution3_angle")

# Sketch on XZ plane
sketch6 = body.newObject("Sketcher::SketchObject", "Sketch005")
sketch6.AttachmentSupport = (doc.getObject("XZ_Plane"), [""])
sketch6.MapMode = "FlatFace"
add_polygon(sketch6, [(399, -24), (399, -8), (428, -8), (428, 8), (399, 8), (399, 24), (444, 24), (444, -24)])  # lines 0-7
sketch6.addConstraint(Sketcher.Constraint("Vertical", 0))
sketch6.addConstraint(Sketcher.Constraint("Horizontal", 1))
sketch6.addConstraint(Sketcher.Constraint("Vertical", 2))
sketch6.addConstraint(Sketcher.Constraint("Horizontal", 3))
sketch6.addConstraint(Sketcher.Constraint("Vertical", 4))
sketch6.addConstraint(Sketcher.Constraint("Horizontal", 5))
sketch6.addConstraint(Sketcher.Constraint("Vertical", 6))
sketch6.addConstraint(Sketcher.Constraint("Horizontal", 7))
sketch6.addConstraint(Sketcher.Constraint("Symmetric", 0, 2, 3, 2, -1))
sketch6.addConstraint(Sketcher.Constraint("Equal", 0, 2))
sketch6.addConstraint(Sketcher.Constraint("Equal", 2, 4))
sketch6.addConstraint(Sketcher.Constraint("DistanceX", 1, 1, 1, 2, Q("29 mm")))
sketch6.addConstraint(Sketcher.Constraint("DistanceX", 5, 1, 5, 2, Q("45 mm")))
sketch6.addConstraint(Sketcher.Constraint("DistanceY", 0, 1, 0, 2, Q("16 mm")))
sketch6.addConstraint(Sketcher.Constraint("DistanceX", -1, 1, 0, 2, Q("399 mm")))
sketch6.setExpression("Constraints[19]", "Params.sketch6_width")
sketch6.setExpression("Constraints[20]", "Params.sketch6_width2")
sketch6.setExpression("Constraints[21]", "Params.sketch6_height")
pocket1 = body.newObject("PartDesign::Pocket", "Pocket")
pocket1.Profile = sketch6
pocket1.Type = "ThroughAll"
pocket1.Midplane = True

# Sketch on XY plane
sketch7 = body.newObject("Sketcher::SketchObject", "Sketch006")
sketch7.AttachmentSupport = (doc.getObject("XY_Plane"), [""])
sketch7.MapMode = "FlatFace"
sketch7.AttachmentOffset = App.Placement(V(0, 0, -8), App.Rotation())
sketch7.addGeometry(Part.Circle(V(411, 0, 0), V(0, 0, 1), 4), False)
sketch7.addConstraint(Sketcher.Constraint("PointOnObject", 0, 3, -1))
sketch7.addConstraint(Sketcher.Constraint("Diameter", 0, Q("8 mm")))
sketch7.addConstraint(Sketcher.Constraint("DistanceX", -1, 1, 0, 3, Q("411 mm")))
sketch7.setExpression("Constraints[1]", "Params.sketch7_diameter")
doc.recompute()
hole = body.newObject("PartDesign::Hole", "Hole")
hole.Profile = sketch7
hole.ThreadType = "None"
hole.setExpression("Diameter", "Params.hole_diameter")
hole.DepthType = "ThroughAll"
hole.Reversed = True

# Sketch on XZ plane
sketch8 = body.newObject("Sketcher::SketchObject", "Sketch007")
sketch8.AttachmentSupport = (doc.getObject("XZ_Plane"), [""])
sketch8.MapMode = "FlatFace"
sketch8.AttachmentOffset = App.Placement(V(0, 0, -13.5), App.Rotation())
sketch8.addGeometry(Part.Circle(V(28.2, 0, 0), V(0, 0, 1), 4.283), False)
sketch8.addConstraint(Sketcher.Constraint("PointOnObject", 0, 3, -1))
sketch8.addConstraint(Sketcher.Constraint("Diameter", 0, Q("8.566 mm")))
sketch8.addConstraint(Sketcher.Constraint("DistanceX", -1, 1, 0, 3, Q("28.2 mm")))
doc.recompute()
hole2 = body.newObject("PartDesign::Hole", "Hole001")
hole2.Profile = sketch8
hole2.ThreadType = "None"
hole2.setExpression("Diameter", "Params.hole2_diameter")
hole2.DepthType = "Dimension"
hole2.setExpression("Depth", "Params.hole2_depth")
hole2.DrillPoint = "Flat"
hole2.HoleCutType = "Countersink"
hole2.setExpression("HoleCutDiameter", "Params.hole2_csink_diameter")
hole2.HoleCutCountersinkAngle = 90
hole2.Reversed = True

# Sketch on XZ plane
sketch9 = body.newObject("Sketcher::SketchObject", "Sketch008")
sketch9.AttachmentSupport = (doc.getObject("XZ_Plane"), [""])
sketch9.MapMode = "FlatFace"
sketch9.AttachmentOffset = App.Placement(V(0, 0, -13.5), App.Rotation())
sketch9.addGeometry(Part.Circle(V(399.8, 0, 0), V(0, 0, 1), 4.283), False)
sketch9.addConstraint(Sketcher.Constraint("PointOnObject", 0, 3, -1))
sketch9.addConstraint(Sketcher.Constraint("Diameter", 0, Q("8.566 mm")))
sketch9.addConstraint(Sketcher.Constraint("DistanceX", -1, 1, 0, 3, Q("399.8 mm")))
doc.recompute()
hole3 = body.newObject("PartDesign::Hole", "Hole002")
hole3.Profile = sketch9
hole3.ThreadType = "None"
hole3.setExpression("Diameter", "Params.hole3_diameter")
hole3.DepthType = "Dimension"
hole3.setExpression("Depth", "Params.hole3_depth")
hole3.DrillPoint = "Angled"
hole3.DrillPointAngle = 120
hole3.HoleCutType = "Countersink"
hole3.setExpression("HoleCutDiameter", "Params.hole3_csink_diameter")
hole3.HoleCutCountersinkAngle = 90
hole3.Reversed = True

# Sketch on XY plane
sketch10 = body.newObject("Sketcher::SketchObject", "Sketch009")
sketch10.AttachmentSupport = (doc.getObject("XY_Plane"), [""])
sketch10.MapMode = "FlatFace"
add_polygon(sketch10, [(-4, 4), (-4, 0), (375.3, 0), (375.3, 10), (50.3, 10), (50.3, 4)])  # lines 0-5
sketch10.addConstraint(Sketcher.Constraint("Vertical", 0))
sketch10.addConstraint(Sketcher.Constraint("Horizontal", 1))
sketch10.addConstraint(Sketcher.Constraint("Vertical", 2))
sketch10.addConstraint(Sketcher.Constraint("Horizontal", 3))
sketch10.addConstraint(Sketcher.Constraint("Vertical", 4))
sketch10.addConstraint(Sketcher.Constraint("Horizontal", 5))
sketch10.addConstraint(Sketcher.Constraint("PointOnObject", 0, 2, -1))
sketch10.addConstraint(Sketcher.Constraint("DistanceX", 3, 2, 3, 1, Q("325 mm")))
sketch10.addConstraint(Sketcher.Constraint("DistanceY", 0, 2, 0, 1, Q("4 mm")))
sketch10.addConstraint(Sketcher.Constraint("DistanceY", 2, 1, 2, 2, Q("10 mm")))
sketch10.addConstraint(Sketcher.Constraint("DistanceX", 1, 1, 1, 2, Q("379.3 mm")))
sketch10.addConstraint(Sketcher.Constraint("DistanceX", 0, 2, -1, 1, Q("4 mm")))
sketch10.setExpression("Constraints[13]", "Params.sketch10_width")
sketch10.setExpression("Constraints[14]", "Params.sketch10_height")
sketch10.setExpression("Constraints[15]", "Params.sketch10_height2")
sketch10.setExpression("Constraints[16]", "Params.sketch10_width2")
groove = body.newObject("PartDesign::Groove", "Groove")
groove.Profile = sketch10
groove.ReferenceAxis = (sketch10, ["H_Axis"])
groove.setExpression("Angle", "Params.groove_angle")

doc.recompute()
